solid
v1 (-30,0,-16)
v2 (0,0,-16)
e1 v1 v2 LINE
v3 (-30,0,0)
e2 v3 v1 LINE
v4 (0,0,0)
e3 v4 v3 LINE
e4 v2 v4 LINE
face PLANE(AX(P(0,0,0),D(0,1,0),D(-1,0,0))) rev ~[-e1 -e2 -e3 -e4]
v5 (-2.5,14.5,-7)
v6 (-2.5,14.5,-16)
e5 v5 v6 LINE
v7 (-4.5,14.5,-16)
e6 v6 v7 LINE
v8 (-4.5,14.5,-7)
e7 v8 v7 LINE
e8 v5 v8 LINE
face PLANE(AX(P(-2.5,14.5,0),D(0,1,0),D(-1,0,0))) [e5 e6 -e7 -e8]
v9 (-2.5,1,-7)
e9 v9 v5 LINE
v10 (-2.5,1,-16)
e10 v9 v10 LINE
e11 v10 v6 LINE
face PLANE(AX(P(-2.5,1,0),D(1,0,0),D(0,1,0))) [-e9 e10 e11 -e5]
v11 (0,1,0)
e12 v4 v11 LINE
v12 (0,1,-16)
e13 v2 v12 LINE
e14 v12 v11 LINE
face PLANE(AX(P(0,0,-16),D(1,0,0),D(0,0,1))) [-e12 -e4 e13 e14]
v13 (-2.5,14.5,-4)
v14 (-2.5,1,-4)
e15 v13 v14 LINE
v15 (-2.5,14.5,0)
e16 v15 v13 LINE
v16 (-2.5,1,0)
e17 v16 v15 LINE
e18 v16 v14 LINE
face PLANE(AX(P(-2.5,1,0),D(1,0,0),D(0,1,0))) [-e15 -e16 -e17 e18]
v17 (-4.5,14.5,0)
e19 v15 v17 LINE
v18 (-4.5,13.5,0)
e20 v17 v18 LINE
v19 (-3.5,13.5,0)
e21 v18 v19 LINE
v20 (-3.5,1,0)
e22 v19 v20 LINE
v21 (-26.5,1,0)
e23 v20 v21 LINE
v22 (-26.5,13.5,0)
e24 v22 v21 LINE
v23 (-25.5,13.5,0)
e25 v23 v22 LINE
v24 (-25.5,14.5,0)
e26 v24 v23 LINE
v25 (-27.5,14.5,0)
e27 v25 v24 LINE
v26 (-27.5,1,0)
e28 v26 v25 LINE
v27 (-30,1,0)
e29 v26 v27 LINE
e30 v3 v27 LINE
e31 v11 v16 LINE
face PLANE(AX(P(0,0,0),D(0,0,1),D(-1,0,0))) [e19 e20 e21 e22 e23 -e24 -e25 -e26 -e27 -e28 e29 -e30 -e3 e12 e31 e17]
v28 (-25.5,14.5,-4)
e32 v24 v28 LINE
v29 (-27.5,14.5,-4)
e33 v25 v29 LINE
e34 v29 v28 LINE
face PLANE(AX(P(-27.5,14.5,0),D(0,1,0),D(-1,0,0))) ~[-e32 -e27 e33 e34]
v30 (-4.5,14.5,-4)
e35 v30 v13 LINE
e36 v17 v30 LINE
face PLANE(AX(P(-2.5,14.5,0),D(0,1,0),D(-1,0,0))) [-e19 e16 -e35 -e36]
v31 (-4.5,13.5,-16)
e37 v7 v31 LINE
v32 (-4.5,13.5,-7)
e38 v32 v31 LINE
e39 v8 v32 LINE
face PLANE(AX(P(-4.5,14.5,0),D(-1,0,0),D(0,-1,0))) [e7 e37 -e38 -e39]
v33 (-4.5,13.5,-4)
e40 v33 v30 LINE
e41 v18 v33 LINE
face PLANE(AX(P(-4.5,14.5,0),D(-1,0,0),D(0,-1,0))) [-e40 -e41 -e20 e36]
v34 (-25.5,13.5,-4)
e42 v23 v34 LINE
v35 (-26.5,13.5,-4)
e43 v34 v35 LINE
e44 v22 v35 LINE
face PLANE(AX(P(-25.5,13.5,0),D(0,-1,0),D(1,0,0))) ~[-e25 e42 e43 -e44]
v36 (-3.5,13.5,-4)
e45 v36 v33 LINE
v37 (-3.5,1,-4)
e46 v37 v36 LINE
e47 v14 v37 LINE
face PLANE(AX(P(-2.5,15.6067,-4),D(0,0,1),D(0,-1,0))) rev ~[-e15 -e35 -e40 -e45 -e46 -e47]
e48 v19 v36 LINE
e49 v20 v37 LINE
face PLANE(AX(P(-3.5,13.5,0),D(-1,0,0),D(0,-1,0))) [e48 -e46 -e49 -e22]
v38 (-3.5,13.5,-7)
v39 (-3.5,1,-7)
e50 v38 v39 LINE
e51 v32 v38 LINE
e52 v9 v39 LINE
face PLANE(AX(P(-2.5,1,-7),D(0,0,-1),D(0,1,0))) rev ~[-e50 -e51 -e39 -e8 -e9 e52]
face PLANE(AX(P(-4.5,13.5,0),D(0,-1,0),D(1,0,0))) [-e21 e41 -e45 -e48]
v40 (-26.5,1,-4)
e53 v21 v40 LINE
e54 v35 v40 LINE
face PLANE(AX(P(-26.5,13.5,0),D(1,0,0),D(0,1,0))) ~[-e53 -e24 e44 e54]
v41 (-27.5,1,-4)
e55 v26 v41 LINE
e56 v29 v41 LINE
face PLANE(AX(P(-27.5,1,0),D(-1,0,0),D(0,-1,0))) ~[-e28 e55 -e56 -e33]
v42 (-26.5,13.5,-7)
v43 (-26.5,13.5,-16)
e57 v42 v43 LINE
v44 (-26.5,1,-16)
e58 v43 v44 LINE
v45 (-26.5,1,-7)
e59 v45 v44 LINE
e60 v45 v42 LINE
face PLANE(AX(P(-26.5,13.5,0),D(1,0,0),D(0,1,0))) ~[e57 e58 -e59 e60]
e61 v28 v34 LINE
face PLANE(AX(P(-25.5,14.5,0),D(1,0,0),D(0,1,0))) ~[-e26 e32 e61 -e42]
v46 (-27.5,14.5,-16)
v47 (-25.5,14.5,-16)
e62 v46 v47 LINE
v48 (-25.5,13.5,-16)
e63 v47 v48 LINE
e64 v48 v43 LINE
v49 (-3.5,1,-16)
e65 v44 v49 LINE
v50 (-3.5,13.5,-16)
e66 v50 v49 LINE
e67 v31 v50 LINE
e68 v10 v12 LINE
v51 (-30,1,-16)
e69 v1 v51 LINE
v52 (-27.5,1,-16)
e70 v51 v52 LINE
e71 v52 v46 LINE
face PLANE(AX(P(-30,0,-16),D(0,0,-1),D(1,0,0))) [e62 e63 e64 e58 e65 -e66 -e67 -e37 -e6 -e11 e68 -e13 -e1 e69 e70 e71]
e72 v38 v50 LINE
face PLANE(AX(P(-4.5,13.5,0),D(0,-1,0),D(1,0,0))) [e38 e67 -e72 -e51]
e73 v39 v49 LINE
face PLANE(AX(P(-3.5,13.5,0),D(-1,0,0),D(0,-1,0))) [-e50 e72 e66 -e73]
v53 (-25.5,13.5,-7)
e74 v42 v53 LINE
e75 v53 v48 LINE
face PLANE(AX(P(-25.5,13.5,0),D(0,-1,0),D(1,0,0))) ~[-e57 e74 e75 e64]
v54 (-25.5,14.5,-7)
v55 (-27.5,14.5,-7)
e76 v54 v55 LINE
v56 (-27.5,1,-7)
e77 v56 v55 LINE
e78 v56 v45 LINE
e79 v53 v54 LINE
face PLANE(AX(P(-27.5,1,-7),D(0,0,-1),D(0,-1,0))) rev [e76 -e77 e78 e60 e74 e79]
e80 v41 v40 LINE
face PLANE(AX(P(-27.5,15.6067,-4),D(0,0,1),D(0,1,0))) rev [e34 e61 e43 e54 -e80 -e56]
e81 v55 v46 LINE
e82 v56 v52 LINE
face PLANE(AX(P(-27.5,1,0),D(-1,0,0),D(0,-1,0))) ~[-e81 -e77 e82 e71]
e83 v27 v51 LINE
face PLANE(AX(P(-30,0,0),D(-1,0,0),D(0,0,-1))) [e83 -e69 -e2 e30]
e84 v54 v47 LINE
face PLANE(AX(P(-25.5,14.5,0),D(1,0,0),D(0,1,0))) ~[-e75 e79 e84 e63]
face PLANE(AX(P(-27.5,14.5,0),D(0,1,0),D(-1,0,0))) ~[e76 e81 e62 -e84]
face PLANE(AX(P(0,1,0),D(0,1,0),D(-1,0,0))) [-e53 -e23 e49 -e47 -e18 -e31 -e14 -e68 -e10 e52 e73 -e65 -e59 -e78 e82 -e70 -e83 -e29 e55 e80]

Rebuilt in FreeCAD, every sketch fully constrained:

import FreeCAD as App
import Part
import Sketcher
from FreeCAD import Vector
Q = App.Units.Quantity


def add_polygon(sketch, points):
    """Adds a closed chain of lines whose ends are joined by coincident constraints."""
    first, n = sketch.GeometryCount, len(points)
    for a, b in zip(points, points[1:] + points[:1]):
        sketch.addGeometry(Part.LineSegment(App.Vector(*a, 0), App.Vector(*b, 0)), False)
    for i in range(n):
        sketch.addConstraint(Sketcher.Constraint("Coincident", first + i, 2, first + (i + 1) % n, 1))

doc = App.newDocument("Part")
params = doc.addObject("Spreadsheet::Sheet", "Params")
for row, (alias, value) in enumerate([
    ("sketch1_width", "30 mm"),
    ("sketch1_height", "16 mm"),
    ("pad1_length", "1 mm"),
    ("sketch2_width", "1 mm"),
    ("sketch2_height", "13.5 mm"),
    ("pad2_length", "16 mm"),
    ("sketch3_height", "3 mm"),
    ("pocket1_length", "16 mm"),
], start=1):
    params.set(f"A{row}", alias)
    params.set(f"B{row}", "=" + value)
    params.setAlias(f"B{row}", alias)

body = doc.addObject("PartDesign::Body", "Body")

sketch1 = doc.addObject("Sketcher::SketchObject", "Sketch")
body.addObject(sketch1)
sketch1.AttachmentSupport = (doc.XZ_Plane, [""])
sketch1.MapMode = "FlatFace"
add_polygon(sketch1, [(-30, 0), (0, 0), (0, -16), (-30, -16)])
sketch1.addConstraint([
    Sketcher.Constraint("Horizontal", 0),
    Sketcher.Constraint("Vertical", 1),
    Sketcher.Constraint("Horizontal", 2),
    Sketcher.Constraint("Vertical", 3),
    Sketcher.Constraint("Coincident", 0, 2, -1, 1),
    Sketcher.Constraint("DistanceX", 0, 1, 0, 2, Q("30 mm")),
    Sketcher.Constraint("DistanceY", 1, 2, 1, 1, Q("16 mm")),
])
sketch1.setExpression("Constraints[9]", "Params.sketch1_width")
sketch1.setExpression("Constraints[10]", "Params.sketch1_height")
pad1 = doc.addObject("PartDesign::Pad", "Pad")
body.addObject(pad1)
pad1.Profile = sketch1
pad1.setExpression("Length", "Params.pad1_length")
pad1.Reversed = True

sketch2 = doc.addObject("Sketcher::SketchObject", "Sketch001")
body.addObject(sketch2)
sketch2.AttachmentSupport = (doc.XY_Plane, [""])
sketch2.MapMode = "FlatFace"
add_polygon(sketch2, [(-3.5, 1), (-2.5, 1), (-2.5, 14.5), (-4.5, 14.5), (-4.5, 13.5), (-3.5, 13.5)])
sketch2.addConstraint([
    Sketcher.Constraint("Horizontal", 0),
    Sketcher.Constraint("Vertical", 1),
    Sketcher.Constraint("Horizontal", 2),
    Sketcher.Constraint("Vertical", 3),
    Sketcher.Constraint("Horizontal", 4),
    Sketcher.Constraint("Vertical", 5),
    Sketcher.Constraint("Equal", 0, 4),
    Sketcher.Constraint("Equal", 4, 3),
    Sketcher.Constraint("DistanceX", 0, 1, 0, 2, Q("1 mm")),
    Sketcher.Constraint("DistanceY", 1, 1, 1, 2, Q("13.5 mm")),
    Sketcher.Constraint("DistanceY", -1, 1, 0, 2, Q("1 mm")),
    Sketcher.Constraint("DistanceX", 0, 2, -1, 1, Q("2.5 mm")),
])
sketch2.setExpression("Constraints[14]", "Params.sketch2_width")
sketch2.setExpression("Constraints[15]", "Params.sketch2_height")
pad2 = doc.addObject("PartDesign::Pad", "Pad001")
body.addObject(pad2)
pad2.Profile = sketch2
pad2.setExpression("Length", "Params.pad2_length")
pad2.Reversed = True

sketch3 = doc.addObject("Sketcher::SketchObject", "Sketch002")
body.addObject(sketch3)
sketch3.AttachmentSupport = (doc.YZ_Plane, [""])
sketch3.MapMode = "FlatFace"
sketch3.AttachmentOffset = App.Placement(Vector(0, 0, -2.5), App.Rotation())
add_polygon(sketch3, [(1, -4), (1, -7), (15.6, -7), (15.6, -4)])
sketch3.addConstraint([
    Sketcher.Constraint("Vertical", 0),
    Sketcher.Constraint("Horizontal", 1),
    Sketcher.Constraint("Vertical", 2),
    Sketcher.Constraint("Horizontal", 3),
    Sketcher.Constraint("DistanceY", 0, 2, 0, 1, Q("3 mm")),
    Sketcher.Constraint("DistanceX", -1, 1, 0, 2, Q("1 mm")),
    Sketcher.Constraint("DistanceY", 0, 2, -1, 1, Q("7 mm")),
    Sketcher.Constraint("DistanceX", 1, 1, 1, 2, Q("14.6067 mm")),
])
sketch3.setExpression("Constraints[8]", "Params.sketch3_height")
pocket1 = doc.addObject("PartDesign::Pocket", "Pocket")
body.addObject(pocket1)
pocket1.Profile = sketch3
pocket1.setExpression("Length", "Params.pocket1_length")
doc.recompute()

datumplane = doc.addObject("PartDesign::Plane", "DatumPlane")
body.addObject(datumplane)
datumplane.AttachmentSupport = (doc.YZ_Plane, [""])
datumplane.MapMode = "FlatFace"
datumplane.AttachmentOffset = App.Placement(Vector(0, 0, -15), App.Rotation())
mirrored = doc.addObject("PartDesign::Mirrored", "Mirrored")
body.addObject(mirrored)
mirrored.Originals = [pad2, pocket1]
mirrored.MirrorPlane = (datumplane, [""])
body.Tip = mirrored

doc.recompute()
